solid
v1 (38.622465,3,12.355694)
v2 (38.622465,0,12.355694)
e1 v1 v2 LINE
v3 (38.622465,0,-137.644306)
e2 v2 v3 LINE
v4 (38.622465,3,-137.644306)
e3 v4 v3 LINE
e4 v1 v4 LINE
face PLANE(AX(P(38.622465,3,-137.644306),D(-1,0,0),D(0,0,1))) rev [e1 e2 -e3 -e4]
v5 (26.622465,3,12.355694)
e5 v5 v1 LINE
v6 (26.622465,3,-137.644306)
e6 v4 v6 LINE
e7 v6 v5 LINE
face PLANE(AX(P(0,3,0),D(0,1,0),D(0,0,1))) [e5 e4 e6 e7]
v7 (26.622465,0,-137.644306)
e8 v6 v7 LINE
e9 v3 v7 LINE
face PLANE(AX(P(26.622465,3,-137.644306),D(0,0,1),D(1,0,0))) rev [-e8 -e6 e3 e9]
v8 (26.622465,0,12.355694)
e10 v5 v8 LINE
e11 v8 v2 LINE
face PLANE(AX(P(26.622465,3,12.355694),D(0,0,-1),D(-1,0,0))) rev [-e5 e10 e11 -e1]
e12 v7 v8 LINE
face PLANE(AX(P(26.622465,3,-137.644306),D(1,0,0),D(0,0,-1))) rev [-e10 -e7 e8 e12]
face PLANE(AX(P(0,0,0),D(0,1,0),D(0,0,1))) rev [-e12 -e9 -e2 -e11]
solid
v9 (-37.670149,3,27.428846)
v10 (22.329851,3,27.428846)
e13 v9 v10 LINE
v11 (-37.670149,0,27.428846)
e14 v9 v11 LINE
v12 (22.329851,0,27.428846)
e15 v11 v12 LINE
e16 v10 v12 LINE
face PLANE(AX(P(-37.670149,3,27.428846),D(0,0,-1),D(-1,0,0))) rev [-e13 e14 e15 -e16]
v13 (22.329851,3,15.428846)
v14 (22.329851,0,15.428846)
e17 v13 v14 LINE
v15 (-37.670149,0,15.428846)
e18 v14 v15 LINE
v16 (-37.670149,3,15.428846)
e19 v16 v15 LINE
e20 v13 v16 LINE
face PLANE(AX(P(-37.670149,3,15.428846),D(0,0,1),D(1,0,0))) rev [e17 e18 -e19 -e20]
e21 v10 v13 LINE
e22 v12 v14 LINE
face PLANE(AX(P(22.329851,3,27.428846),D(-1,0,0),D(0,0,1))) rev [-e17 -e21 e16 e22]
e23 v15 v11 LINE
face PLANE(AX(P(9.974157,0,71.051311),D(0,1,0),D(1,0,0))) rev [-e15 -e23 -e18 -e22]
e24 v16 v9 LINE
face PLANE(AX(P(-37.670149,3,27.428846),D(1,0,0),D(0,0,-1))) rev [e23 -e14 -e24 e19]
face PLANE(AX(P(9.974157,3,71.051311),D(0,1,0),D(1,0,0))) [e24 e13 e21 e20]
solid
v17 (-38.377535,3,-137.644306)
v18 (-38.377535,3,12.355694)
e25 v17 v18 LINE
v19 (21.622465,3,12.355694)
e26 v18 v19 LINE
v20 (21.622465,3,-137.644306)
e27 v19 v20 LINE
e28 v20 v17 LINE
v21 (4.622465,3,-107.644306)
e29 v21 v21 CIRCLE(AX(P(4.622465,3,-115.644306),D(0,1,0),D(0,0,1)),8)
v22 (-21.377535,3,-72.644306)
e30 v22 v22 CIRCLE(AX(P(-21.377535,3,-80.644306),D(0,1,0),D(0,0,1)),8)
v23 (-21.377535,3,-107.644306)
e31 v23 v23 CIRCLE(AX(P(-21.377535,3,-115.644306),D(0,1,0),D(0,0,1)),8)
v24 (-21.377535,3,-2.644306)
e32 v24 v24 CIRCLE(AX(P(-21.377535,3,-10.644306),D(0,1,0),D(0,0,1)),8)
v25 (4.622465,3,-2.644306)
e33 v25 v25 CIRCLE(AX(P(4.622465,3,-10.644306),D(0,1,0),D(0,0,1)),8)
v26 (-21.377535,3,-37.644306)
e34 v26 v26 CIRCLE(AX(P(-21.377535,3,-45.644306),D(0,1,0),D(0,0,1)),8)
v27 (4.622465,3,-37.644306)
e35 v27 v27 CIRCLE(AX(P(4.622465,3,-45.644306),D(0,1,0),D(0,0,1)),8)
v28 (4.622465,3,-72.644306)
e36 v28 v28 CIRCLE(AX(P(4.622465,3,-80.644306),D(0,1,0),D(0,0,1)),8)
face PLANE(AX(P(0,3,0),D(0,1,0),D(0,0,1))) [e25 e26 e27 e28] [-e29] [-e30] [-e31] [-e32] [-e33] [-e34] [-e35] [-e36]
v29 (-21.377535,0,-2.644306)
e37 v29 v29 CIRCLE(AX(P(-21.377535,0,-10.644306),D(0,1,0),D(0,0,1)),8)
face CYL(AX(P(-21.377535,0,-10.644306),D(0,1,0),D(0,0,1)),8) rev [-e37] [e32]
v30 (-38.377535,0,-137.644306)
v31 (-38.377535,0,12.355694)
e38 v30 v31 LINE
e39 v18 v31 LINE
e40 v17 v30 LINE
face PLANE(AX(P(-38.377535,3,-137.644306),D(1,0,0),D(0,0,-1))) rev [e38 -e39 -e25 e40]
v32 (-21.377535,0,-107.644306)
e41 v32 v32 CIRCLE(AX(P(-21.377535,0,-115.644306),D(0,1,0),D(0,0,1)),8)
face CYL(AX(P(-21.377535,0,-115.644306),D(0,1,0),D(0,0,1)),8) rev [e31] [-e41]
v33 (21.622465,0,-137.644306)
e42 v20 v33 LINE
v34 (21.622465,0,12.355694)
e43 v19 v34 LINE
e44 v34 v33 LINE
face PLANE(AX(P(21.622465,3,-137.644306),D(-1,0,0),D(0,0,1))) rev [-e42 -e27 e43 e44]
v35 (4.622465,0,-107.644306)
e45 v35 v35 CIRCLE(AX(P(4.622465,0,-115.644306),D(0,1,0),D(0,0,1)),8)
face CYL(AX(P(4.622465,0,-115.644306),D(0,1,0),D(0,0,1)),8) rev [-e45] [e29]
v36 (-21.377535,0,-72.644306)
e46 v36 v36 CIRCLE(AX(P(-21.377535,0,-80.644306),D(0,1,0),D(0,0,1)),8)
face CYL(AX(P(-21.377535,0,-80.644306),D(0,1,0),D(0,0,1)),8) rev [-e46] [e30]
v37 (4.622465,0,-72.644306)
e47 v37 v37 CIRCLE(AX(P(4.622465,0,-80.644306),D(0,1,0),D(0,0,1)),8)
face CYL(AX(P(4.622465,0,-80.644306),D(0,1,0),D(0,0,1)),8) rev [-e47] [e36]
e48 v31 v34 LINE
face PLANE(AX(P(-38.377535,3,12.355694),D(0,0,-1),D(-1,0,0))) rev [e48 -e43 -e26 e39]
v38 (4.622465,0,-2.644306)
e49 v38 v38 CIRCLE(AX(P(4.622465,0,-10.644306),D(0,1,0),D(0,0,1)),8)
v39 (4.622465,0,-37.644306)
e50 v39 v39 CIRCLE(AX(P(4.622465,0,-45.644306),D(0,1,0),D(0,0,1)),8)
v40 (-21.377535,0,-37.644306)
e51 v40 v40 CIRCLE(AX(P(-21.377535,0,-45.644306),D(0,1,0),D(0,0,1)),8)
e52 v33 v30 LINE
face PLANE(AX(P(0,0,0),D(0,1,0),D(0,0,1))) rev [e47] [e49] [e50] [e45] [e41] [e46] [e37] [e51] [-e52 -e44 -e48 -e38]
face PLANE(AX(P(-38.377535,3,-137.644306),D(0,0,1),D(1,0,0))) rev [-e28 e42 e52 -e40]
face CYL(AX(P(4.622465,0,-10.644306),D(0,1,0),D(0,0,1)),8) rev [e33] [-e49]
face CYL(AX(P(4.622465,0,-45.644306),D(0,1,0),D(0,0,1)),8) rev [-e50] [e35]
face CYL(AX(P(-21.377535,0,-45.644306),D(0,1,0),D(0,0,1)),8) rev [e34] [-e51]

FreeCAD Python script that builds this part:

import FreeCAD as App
import Part
import Sketcher
from FreeCAD import Vector
Q = App.Units.Quantity

doc = App.newDocument("Part")
body = doc.addObject("PartDesign::Body", "Body")

sketch1 = doc.addObject("Sketcher::SketchObject", "Sketch")
body.addObject(sketch1)
sketch1.AttachmentSupport = (doc.XZ_Plane, [""])
sketch1.MapMode = "FlatFace"
sketch1.addGeometry([
    Part.LineSegment(Vector(-38.377535, -137.644306, 0), Vector(-38.377535, 12.355694, 0)),
    Part.LineSegment(Vector(-38.377535, 12.355694, 0), Vector(21.622465, 12.355694, 0)),
    Part.LineSegment(Vector(21.622465, 12.355694, 0), Vector(21.622465, -137.644306, 0)),
    Part.LineSegment(Vector(21.622465, -137.644306, 0), Vector(-38.377535, -137.644306, 0)),
], False)
sketch1.addConstraint([
    Sketcher.Constraint("Coincident", 0, 2, 1, 1),
    Sketcher.Constraint("Coincident", 1, 2, 2, 1),
    Sketcher.Constraint("Coincident", 2, 2, 3, 1),
    Sketcher.Constraint("Coincident", 3, 2, 0, 1),
    Sketcher.Constraint("Vertical", 0),
    Sketcher.Constraint("Horizontal", 1),
    Sketcher.Constraint("Vertical", 2),
    Sketcher.Constraint("Horizontal", 3),
    Sketcher.Constraint("DistanceX", 1, 1, 1, 2, Q("60 mm")),
    Sketcher.Constraint("DistanceY", 0, 1, 0, 2, Q("150 mm")),
    Sketcher.Constraint("DistanceX", 0, 2, -1, 1, Q("38.377535 mm")),
    Sketcher.Constraint("DistanceY", -1, 1, 0, 2, Q("12.355694 mm")),
])
pad1 = doc.addObject("PartDesign::Pad", "Pad")
body.addObject(pad1)
pad1.Profile = sketch1
pad1.Length = 3
pad1.Reversed = True

sketch2 = doc.addObject("Sketcher::SketchObject", "Sketch001")
body.addObject(sketch2)
sketch2.AttachmentSupport = (doc.XZ_Plane, [""])
sketch2.MapMode = "FlatFace"
sketch2.AttachmentOffset = App.Placement(Vector(0, 0, -3), App.Rotation())
sketch2.addGeometry([
    Part.Circle(Vector(4.622465, -10.644306, 0), Vector(0, 0, 1), 8),
    Part.Circle(Vector(-21.377535, -10.644306, 0), Vector(0, 0, 1), 8),
    Part.Circle(Vector(4.622465, -45.644306, 0), Vector(0, 0, 1), 8),
    Part.Circle(Vector(-21.377535, -45.644306, 0), Vector(0, 0, 1), 8),
    Part.Circle(Vector(4.622465, -80.644306, 0), Vector(0, 0, 1), 8),
    Part.Circle(Vector(-21.377535, -80.644306, 0), Vector(0, 0, 1), 8),
    Part.Circle(Vector(4.622465, -115.644306, 0), Vector(0, 0, 1), 8),
    Part.Circle(Vector(-21.377535, -115.644306, 0), Vector(0, 0, 1), 8),
], False)
sketch2.addConstraint([
    Sketcher.Constraint("Equal", 0, 1),
    Sketcher.Constraint("Equal", 1, 2),
    Sketcher.Constraint("Equal", 2, 3),
    Sketcher.Constraint("Equal", 3, 4),
    Sketcher.Constraint("Equal", 4, 5),
    Sketcher.Constraint("Equal", 5, 6),
    Sketcher.Constraint("Equal", 6, 7),
    Sketcher.Constraint("Horizontal", 0, 3, 1, 3),
    Sketcher.Constraint("Horizontal", 2, 3, 3, 3),
    Sketcher.Constraint("Horizontal", 4, 3, 5, 3),
    Sketcher.Constraint("Horizontal", 6, 3, 7, 3),
    Sketcher.Constraint("Vertical", 0, 3, 2, 3),
    Sketcher.Constraint("Vertical", 1, 3, 3, 3),
    Sketcher.Constraint("Vertical", 2, 3, 4, 3),
    Sketcher.Constraint("Vertical", 3, 3, 5, 3),
    Sketcher.Constraint("Vertical", 4, 3, 6, 3),
    Sketcher.Constraint("Vertical", 5, 3, 7, 3),
    Sketcher.Constraint("Diameter", 0, Q("16 mm")),
    Sketcher.Constraint("DistanceX", 1, 3, 0, 3, Q("26 mm")),
    Sketcher.Constraint("DistanceY", 2, 3, 0, 3, Q("35 mm")),
    Sketcher.Constraint("DistanceY", 4, 3, 2, 3, Q("35 mm")),
    Sketcher.Constraint("DistanceY", 6, 3, 4, 3, Q("35 mm")),
    Sketcher.Constraint("DistanceX", -1, 1, 0, 3, Q("4.622465 mm")),
    Sketcher.Constraint("DistanceY", 0, 3, -1, 1, Q("10.644306 mm")),
])
pocket1 = doc.addObject("PartDesign::Pocket", "Pocket")
body.addObject(pocket1)
pocket1.Profile = sketch2
pocket1.Length = 3
pocket1.Reversed = True
body2 = doc.addObject("PartDesign::Body", "Body001")

sketch3 = doc.addObject("Sketcher::SketchObject", "Sketch002")
body2.addObject(sketch3)
sketch3.AttachmentSupport = (doc.getObject("XZ_Plane001"), [""])
sketch3.MapMode = "FlatFace"
sketch3.addGeometry([
    Part.LineSegment(Vector(26.622465, -137.644306, 0), Vector(26.622465, 12.355694, 0)),
    Part.LineSegment(Vector(26.622465, 12.355694, 0), Vector(38.622465, 12.355694, 0)),
    Part.LineSegment(Vector(38.622465, 12.355694, 0), Vector(38.622465, -137.644306, 0)),
    Part.LineSegment(Vector(38.622465, -137.644306, 0), Vector(26.622465, -137.644306, 0)),
], False)
sketch3.addConstraint([
    Sketcher.Constraint("Coincident", 0, 2, 1, 1),
    Sketcher.Constraint("Coincident", 1, 2, 2, 1),
    Sketcher.Constraint("Coincident", 2, 2, 3, 1),
    Sketcher.Constraint("Coincident", 3, 2, 0, 1),
    Sketcher.Constraint("Vertical", 0),
    Sketcher.Constraint("Horizontal", 1),
    Sketcher.Constraint("Vertical", 2),
    Sketcher.Constraint("Horizontal", 3),
    Sketcher.Constraint("DistanceX", 1, 1, 1, 2, Q("12 mm")),
    Sketcher.Constraint("DistanceY", 0, 1, 0, 2, Q("150 mm")),
    Sketcher.Constraint("DistanceX", -1, 1, 0, 2, Q("26.622465 mm")),
    Sketcher.Constraint("DistanceY", -1, 1, 0, 2, Q("12.355694 mm")),
])
pad2 = doc.addObject("PartDesign::Pad", "Pad001")
body2.addObject(pad2)
pad2.Profile = sketch3
pad2.Length = 3
pad2.Reversed = True
body3 = doc.addObject("PartDesign::Body", "Body002")

sketch4 = doc.addObject("Sketcher::SketchObject", "Sketch003")
body3.addObject(sketch4)
sketch4.AttachmentSupport = (doc.getObject("XZ_Plane002"), [""])
sketch4.MapMode = "FlatFace"
sketch4.addGeometry([
    Part.LineSegment(Vector(43.622465, -47.644306, 0), Vector(43.622465, 12.355694, 0)),
    Part.LineSegment(Vector(43.622465, 12.355694, 0), Vector(55.622465, 12.355694, 0)),
    Part.LineSegment(Vector(55.622465, 12.355694, 0), Vector(55.622465, -47.644306, 0)),
    Part.LineSegment(Vector(55.622465, -47.644306, 0), Vector(43.622465, -47.644306, 0)),
], False)
sketch4.addConstraint([
    Sketcher.Constraint("Coincident", 0, 2, 1, 1),
    Sketcher.Constraint("Coincident", 1, 2, 2, 1),
    Sketcher.Constraint("Coincident", 2, 2, 3, 1),
    Sketcher.Constraint("Coincident", 3, 2, 0, 1),
    Sketcher.Constraint("Vertical", 0),
    Sketcher.Constraint("Horizontal", 1),
    Sketcher.Constraint("Vertical", 2),
    Sketcher.Constraint("Horizontal", 3),
    Sketcher.Constraint("DistanceX", 1, 1, 1, 2, Q("12 mm")),
    Sketcher.Constraint("DistanceY", 0, 1, 0, 2, Q("60 mm")),
    Sketcher.Constraint("DistanceX", -1, 1, 0, 2, Q("43.622465 mm")),
    Sketcher.Constraint("DistanceY", -1, 1, 0, 2, Q("12.355694 mm")),
])
pad3 = doc.addObject("PartDesign::Pad", "Pad002")
body3.addObject(pad3)
pad3.Profile = sketch4
pad3.Length = 3
pad3.Reversed = True
body4 = doc.addObject("PartDesign::Body", "Body003")
doc.recompute()

body3.Placement = App.Placement(Vector(142.89638, 0, 56.36274), App.Rotation(Vector(0, 1, 0), 90))
boolean = doc.addObject("PartDesign::Boolean", "Boolean")
body4.addObject(boolean)
boolean.Type = "Fuse"
boolean.addObjects([body3])
body5 = doc.addObject("PartDesign::Body", "Body004")
doc.recompute()

body4.Placement = App.Placement(Vector(-132.922223, 0, 14.688571), App.Rotation(Vector(0, 0, 1), 0))
boolean2 = doc.addObject("PartDesign::Boolean", "Boolean001")
body5.addObject(boolean2)
boolean2.Type = "Fuse"
boolean2.addObjects([body4])

doc.recompute()
